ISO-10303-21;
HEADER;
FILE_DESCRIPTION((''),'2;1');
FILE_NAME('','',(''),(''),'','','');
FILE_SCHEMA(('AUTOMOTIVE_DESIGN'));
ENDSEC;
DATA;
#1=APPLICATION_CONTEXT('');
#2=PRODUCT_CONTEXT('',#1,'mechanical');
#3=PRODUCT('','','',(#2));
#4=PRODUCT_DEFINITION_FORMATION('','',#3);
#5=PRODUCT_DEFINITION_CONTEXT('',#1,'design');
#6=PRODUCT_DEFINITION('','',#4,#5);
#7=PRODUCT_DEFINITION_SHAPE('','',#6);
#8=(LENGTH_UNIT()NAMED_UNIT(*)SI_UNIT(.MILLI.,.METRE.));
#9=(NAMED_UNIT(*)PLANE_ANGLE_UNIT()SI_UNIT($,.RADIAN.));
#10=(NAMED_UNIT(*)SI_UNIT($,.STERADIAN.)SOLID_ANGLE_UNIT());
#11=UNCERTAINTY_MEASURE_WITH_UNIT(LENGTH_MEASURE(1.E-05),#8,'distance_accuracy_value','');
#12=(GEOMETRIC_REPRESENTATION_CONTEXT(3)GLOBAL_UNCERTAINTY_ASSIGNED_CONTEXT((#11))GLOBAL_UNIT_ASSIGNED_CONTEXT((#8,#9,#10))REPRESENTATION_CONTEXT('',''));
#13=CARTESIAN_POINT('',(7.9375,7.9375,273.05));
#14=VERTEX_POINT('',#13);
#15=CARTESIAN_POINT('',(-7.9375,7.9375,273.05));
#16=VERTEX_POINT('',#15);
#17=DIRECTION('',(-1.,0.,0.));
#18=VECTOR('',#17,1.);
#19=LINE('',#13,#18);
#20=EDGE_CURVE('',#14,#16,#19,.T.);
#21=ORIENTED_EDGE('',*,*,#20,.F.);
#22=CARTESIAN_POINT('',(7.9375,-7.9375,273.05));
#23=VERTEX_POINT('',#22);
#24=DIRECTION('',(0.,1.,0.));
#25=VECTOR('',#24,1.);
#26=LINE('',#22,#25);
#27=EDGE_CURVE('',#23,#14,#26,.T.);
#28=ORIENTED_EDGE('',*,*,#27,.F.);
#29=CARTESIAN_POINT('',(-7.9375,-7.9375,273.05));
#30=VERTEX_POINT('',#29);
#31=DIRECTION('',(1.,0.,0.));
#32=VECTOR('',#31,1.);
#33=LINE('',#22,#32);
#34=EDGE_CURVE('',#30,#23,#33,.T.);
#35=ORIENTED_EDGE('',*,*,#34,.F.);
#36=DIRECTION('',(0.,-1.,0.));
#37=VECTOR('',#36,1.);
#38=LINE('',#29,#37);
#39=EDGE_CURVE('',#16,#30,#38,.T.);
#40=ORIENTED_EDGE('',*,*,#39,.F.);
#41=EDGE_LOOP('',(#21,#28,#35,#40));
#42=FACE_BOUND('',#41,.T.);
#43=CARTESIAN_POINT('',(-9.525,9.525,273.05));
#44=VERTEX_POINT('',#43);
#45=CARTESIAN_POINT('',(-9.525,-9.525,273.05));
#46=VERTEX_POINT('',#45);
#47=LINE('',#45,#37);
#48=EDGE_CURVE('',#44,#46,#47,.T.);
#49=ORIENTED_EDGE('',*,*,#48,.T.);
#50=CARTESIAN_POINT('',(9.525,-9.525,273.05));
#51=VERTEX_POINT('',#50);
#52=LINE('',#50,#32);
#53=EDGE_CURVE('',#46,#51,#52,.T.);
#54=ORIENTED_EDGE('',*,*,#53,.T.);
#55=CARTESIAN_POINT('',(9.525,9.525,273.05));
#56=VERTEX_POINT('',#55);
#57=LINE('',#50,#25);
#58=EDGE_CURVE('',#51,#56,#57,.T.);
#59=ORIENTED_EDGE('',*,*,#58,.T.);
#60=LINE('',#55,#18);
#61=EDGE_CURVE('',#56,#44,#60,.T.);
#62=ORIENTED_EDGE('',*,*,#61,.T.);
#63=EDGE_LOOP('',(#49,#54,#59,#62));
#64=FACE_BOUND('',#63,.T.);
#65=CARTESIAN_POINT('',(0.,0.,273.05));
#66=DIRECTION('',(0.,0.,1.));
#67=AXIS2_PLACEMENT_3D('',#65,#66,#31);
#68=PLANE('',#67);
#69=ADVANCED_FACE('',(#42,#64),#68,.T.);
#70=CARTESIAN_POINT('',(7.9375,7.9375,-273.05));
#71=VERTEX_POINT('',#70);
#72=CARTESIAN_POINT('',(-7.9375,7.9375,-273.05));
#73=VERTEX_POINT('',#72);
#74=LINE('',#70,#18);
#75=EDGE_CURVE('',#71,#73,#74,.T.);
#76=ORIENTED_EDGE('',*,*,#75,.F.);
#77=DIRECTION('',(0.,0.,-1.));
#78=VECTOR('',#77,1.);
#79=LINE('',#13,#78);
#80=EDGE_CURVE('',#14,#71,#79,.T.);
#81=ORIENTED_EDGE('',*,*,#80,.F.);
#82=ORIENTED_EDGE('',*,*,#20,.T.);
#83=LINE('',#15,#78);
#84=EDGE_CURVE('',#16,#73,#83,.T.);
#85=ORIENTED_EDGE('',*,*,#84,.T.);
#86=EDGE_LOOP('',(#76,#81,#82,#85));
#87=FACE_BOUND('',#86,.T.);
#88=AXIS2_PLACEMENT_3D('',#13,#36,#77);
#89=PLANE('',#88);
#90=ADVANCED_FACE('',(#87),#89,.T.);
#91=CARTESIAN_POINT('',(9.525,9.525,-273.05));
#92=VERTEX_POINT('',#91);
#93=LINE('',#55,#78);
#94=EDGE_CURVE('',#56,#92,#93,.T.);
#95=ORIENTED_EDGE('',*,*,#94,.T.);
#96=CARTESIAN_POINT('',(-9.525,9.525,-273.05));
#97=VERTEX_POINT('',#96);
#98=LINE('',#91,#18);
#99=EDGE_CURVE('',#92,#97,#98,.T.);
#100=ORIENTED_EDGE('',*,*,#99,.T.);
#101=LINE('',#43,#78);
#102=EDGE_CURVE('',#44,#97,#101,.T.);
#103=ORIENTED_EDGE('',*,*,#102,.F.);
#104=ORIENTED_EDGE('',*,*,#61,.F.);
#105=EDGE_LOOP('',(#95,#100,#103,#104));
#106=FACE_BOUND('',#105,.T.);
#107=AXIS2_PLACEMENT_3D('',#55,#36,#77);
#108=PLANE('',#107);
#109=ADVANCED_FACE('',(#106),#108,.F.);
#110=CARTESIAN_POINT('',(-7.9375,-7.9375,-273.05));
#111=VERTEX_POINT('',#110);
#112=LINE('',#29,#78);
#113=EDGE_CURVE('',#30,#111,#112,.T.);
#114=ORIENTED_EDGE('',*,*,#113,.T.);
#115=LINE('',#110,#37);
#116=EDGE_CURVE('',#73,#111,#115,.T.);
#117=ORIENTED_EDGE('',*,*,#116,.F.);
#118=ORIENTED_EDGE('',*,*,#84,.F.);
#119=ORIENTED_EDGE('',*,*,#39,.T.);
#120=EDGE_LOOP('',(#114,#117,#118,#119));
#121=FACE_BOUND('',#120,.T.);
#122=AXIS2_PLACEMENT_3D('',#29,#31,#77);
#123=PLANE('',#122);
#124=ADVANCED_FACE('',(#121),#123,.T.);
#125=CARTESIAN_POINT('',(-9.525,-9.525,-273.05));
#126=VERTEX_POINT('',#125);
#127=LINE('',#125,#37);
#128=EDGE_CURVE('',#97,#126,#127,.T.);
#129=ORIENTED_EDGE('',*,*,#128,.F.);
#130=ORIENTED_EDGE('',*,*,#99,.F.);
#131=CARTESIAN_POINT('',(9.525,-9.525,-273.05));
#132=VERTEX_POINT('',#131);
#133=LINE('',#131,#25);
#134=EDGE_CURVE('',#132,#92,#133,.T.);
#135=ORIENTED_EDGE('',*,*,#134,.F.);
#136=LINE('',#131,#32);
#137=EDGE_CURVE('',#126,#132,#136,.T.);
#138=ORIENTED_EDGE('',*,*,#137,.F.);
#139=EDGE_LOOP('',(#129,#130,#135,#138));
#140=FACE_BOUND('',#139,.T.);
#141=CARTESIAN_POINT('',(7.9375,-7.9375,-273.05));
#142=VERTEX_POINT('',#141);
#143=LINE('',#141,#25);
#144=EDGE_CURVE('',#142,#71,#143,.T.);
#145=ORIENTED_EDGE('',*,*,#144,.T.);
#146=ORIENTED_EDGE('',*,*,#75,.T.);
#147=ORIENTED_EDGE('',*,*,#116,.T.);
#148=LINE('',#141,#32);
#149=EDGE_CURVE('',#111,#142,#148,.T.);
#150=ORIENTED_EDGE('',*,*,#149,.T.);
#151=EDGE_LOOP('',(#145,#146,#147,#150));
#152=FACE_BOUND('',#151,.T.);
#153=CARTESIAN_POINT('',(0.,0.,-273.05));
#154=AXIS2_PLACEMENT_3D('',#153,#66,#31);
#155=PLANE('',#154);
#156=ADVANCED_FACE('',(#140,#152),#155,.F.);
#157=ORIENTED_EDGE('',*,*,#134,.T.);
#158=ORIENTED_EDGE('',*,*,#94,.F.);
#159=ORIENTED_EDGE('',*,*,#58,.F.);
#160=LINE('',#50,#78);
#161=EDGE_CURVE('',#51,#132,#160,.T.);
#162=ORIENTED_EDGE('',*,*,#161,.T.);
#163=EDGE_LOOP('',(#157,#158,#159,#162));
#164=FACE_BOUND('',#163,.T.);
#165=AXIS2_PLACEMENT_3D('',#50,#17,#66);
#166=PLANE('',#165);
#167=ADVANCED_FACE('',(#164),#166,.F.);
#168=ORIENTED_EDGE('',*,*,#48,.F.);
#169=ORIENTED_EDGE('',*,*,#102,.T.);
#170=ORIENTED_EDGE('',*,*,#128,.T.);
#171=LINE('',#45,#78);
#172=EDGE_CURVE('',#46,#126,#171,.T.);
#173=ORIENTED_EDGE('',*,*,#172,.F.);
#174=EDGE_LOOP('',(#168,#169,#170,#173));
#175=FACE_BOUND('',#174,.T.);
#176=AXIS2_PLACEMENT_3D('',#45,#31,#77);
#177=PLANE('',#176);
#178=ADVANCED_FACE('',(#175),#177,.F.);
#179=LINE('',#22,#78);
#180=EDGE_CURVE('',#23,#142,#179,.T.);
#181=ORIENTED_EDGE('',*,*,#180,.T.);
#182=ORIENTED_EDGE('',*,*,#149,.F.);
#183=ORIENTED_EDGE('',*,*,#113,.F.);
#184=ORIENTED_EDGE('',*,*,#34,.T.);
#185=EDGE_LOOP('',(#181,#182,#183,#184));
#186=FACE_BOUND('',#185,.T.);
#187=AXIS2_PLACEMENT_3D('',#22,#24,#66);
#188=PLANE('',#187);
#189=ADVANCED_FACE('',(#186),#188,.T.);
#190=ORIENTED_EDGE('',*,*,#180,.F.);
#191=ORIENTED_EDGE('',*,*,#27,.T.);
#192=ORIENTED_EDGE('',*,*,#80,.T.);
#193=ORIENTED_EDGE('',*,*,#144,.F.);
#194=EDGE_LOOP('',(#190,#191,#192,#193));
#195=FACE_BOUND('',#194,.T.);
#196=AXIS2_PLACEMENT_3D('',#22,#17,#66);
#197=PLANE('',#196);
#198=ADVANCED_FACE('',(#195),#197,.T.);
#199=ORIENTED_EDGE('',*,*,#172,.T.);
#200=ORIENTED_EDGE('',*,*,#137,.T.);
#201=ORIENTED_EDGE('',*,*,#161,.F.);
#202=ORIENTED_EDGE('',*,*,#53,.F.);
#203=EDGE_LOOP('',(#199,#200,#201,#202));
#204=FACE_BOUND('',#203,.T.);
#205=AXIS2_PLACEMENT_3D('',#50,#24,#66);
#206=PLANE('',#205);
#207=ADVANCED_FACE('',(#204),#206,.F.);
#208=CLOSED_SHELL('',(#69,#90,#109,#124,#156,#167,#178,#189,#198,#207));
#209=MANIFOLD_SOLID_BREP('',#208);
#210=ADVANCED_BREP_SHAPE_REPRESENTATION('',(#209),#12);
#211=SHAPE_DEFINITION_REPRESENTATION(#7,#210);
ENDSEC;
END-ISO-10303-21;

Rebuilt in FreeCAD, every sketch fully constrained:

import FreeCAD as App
import Part
import Sketcher

V = App.Vector
Q = App.Units.Quantity

doc = App.newDocument("Part")
params = doc.addObject("Spreadsheet::Sheet", "Params")
for row, (alias, value) in enumerate([
    ("sketch1_width", "0.75 in"),
    ("sketch1_width2", "0.625 in"),
    ("pad1_length", "21.5 in"),
], start=1):
    params.set(f"A{row}", alias)
    params.set(f"B{row}", "=" + value)
    params.setAlias(f"B{row}", alias)

body = doc.addObject("PartDesign::Body", "Body")

# Sketch on XY plane
sketch1 = body.newObject("Sketcher::SketchObject", "Sketch")
sketch1.AttachmentSupport = (doc.getObject("XY_Plane"), [""])
sketch1.MapMode = "FlatFace"
sketch1.addGeometry([
    Part.LineSegment(V(-10, 10, 0), V(-10, -10, 0)),  # 0
    Part.LineSegment(V(-10, -10, 0), V(10, -10, 0)),  # 1
    Part.LineSegment(V(10, -10, 0), V(10, 10, 0)),  # 2
    Part.LineSegment(V(10, 10, 0), V(-10, 10, 0)),  # 3
    Part.LineSegment(V(8, -8, 0), V(-8, -8, 0)),  # 4
    Part.LineSegment(V(-8, -8, 0), V(-8, 8, 0)),  # 5
    Part.LineSegment(V(-8, 8, 0), V(8, 8, 0)),  # 6
    Part.LineSegment(V(8, 8, 0), V(8, -8, 0)),  # 7
], False)
sketch1.addConstraint([
    Sketcher.Constraint("Coincident", 0, 2, 1, 1),
    Sketcher.Constraint("Coincident", 1, 2, 2, 1),
    Sketcher.Constraint("Coincident", 2, 2, 3, 1),
    Sketcher.Constraint("Coincident", 3, 2, 0, 1),
    Sketcher.Constraint("Coincident", 4, 2, 5, 1),
    Sketcher.Constraint("Coincident", 5, 2, 6, 1),
    Sketcher.Constraint("Coincident", 6, 2, 7, 1),
    Sketcher.Constraint("Coincident", 7, 2, 4, 1),
    Sketcher.Constraint("Vertical", 0),
    Sketcher.Constraint("Horizontal", 1),
    Sketcher.Constraint("Vertical", 2),
    Sketcher.Constraint("Horizontal", 3),
    Sketcher.Constraint("Horizontal", 4),
    Sketcher.Constraint("Vertical", 5),
    Sketcher.Constraint("Horizontal", 6),
    Sketcher.Constraint("Vertical", 7),
    Sketcher.Constraint("Symmetric", 0, 2, 2, 2, -1, 1),
    Sketcher.Constraint("Symmetric", 4, 2, 6, 2, -1, 1),
    Sketcher.Constraint("Equal", 3, 0),
    Sketcher.Constraint("Equal", 6, 5),
    Sketcher.Constraint("DistanceX", 1, 1, 1, 2, Q("0.75 in")),
    Sketcher.Constraint("DistanceX", 4, 2, 4, 1, Q("0.625 in")),
])
sketch1.setExpression("Constraints[20]", "Params.sketch1_width")
sketch1.setExpression("Constraints[21]", "Params.sketch1_width2")
pad1 = body.newObject("PartDesign::Pad", "Pad")
pad1.Profile = sketch1
pad1.setExpression("Length", "Params.pad1_length")
pad1.Midplane = True

doc.recompute()
